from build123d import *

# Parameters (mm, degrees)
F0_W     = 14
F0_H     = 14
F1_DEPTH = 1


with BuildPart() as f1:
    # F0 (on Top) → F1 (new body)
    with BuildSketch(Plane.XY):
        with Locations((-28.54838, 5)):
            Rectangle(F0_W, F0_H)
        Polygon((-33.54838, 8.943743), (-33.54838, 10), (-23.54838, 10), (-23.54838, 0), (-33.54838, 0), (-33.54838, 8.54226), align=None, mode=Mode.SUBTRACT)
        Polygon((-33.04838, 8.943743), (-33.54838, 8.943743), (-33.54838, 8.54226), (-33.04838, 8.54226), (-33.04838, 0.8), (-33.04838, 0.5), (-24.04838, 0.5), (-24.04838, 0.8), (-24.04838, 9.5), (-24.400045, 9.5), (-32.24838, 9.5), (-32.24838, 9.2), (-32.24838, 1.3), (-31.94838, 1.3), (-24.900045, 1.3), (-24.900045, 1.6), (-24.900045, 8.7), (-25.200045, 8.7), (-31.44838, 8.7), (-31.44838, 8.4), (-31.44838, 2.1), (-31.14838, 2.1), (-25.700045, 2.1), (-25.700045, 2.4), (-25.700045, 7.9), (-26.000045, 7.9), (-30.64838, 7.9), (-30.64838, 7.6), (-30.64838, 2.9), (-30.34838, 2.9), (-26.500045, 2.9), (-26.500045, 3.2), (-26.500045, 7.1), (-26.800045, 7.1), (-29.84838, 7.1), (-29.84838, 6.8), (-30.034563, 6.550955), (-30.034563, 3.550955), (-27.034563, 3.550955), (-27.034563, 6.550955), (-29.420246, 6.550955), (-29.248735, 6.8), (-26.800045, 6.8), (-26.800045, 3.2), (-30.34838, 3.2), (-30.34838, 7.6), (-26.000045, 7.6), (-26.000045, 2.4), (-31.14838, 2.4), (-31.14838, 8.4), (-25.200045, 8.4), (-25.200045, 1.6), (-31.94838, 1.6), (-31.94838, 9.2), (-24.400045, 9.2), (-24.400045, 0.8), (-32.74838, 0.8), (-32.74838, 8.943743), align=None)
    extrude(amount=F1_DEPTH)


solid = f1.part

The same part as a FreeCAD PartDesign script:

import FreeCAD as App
import Part
import Sketcher
from FreeCAD import Vector

doc = App.newDocument("Part")
body = doc.addObject("PartDesign::Body", "Body")

# Sketch on XY plane
sketch1 = doc.addObject("Sketcher::SketchObject", "Sketch")
body.addObject(sketch1)
sketch1.AttachmentSupport = (doc.XY_Plane, [""])
sketch1.MapMode = "FlatFace"
sketch1.addGeometry(Part.LineSegment(Vector(-35.54838, 12, 0), Vector(-35.54838, -2, 0)), False)
sketch1.addGeometry(Part.LineSegment(Vector(-35.54838, -2, 0), Vector(-21.54838, -2, 0)), False)
sketch1.addGeometry(Part.LineSegment(Vector(-21.54838, -2, 0), Vector(-21.54838, 12, 0)), False)
sketch1.addGeometry(Part.LineSegment(Vector(-21.54838, 12, 0), Vector(-35.54838, 12, 0)), False)
sketch1.addGeometry(Part.LineSegment(Vector(-33.54838, 0, 0), Vector(-33.54838, 8.54226, 0)), False)
sketch1.addGeometry(Part.LineSegment(Vector(-33.54838, 8.54226, 0), Vector(-33.04838, 8.54226, 0)), False)
sketch1.addGeometry(Part.LineSegment(Vector(-33.04838, 8.54226, 0), Vector(-33.04838, 0.5, 0)), False)
sketch1.addGeometry(Part.LineSegment(Vector(-33.04838, 0.5, 0), Vector(-24.04838, 0.5, 0)), False)
sketch1.addGeometry(Part.LineSegment(Vector(-24.04838, 0.5, 0), Vector(-24.04838, 9.5, 0)), False)
sketch1.addGeometry(Part.LineSegment(Vector(-24.04838, 9.5, 0), Vector(-32.24838, 9.5, 0)), False)
sketch1.addGeometry(Part.LineSegment(Vector(-32.24838, 9.5, 0), Vector(-32.24838, 1.3, 0)), False)
sketch1.addGeometry(Part.LineSegment(Vector(-32.24838, 1.3, 0), Vector(-24.900045, 1.3, 0)), False)
sketch1.addGeometry(Part.LineSegment(Vector(-24.900045, 1.3, 0), Vector(-24.900045, 8.7, 0)), False)
sketch1.addGeometry(Part.LineSegment(Vector(-24.900045, 8.7, 0), Vector(-31.44838, 8.7, 0)), False)
sketch1.addGeometry(Part.LineSegment(Vector(-31.44838, 8.7, 0), Vector(-31.44838, 2.1, 0)), False)
sketch1.addGeometry(Part.LineSegment(Vector(-31.44838, 2.1, 0), Vector(-25.700045, 2.1, 0)), False)
sketch1.addGeometry(Part.LineSegment(Vector(-25.700045, 2.1, 0), Vector(-25.700045, 7.9, 0)), False)
sketch1.addGeometry(Part.LineSegment(Vector(-25.700045, 7.9, 0), Vector(-30.64838, 7.9, 0)), False)
sketch1.addGeometry(Part.LineSegment(Vector(-30.64838, 7.9, 0), Vector(-30.64838, 2.9, 0)), False)
sketch1.addGeometry(Part.LineSegment(Vector(-30.64838, 2.9, 0), Vector(-26.500045, 2.9, 0)), False)
sketch1.addGeometry(Part.LineSegment(Vector(-26.500045, 2.9, 0), Vector(-26.500045, 7.1, 0)), False)
sketch1.addGeometry(Part.LineSegment(Vector(-26.500045, 7.1, 0), Vector(-29.84838, 7.1, 0)), False)
sketch1.addGeometry(Part.LineSegment(Vector(-29.84838, 7.1, 0), Vector(-29.84838, 6.8, 0)), False)
sketch1.addGeometry(Part.LineSegment(Vector(-29.84838, 6.8, 0), Vector(-30.034563, 6.550955, 0)), False)
sketch1.addGeometry(Part.LineSegment(Vector(-30.034563, 6.550955, 0), Vector(-30.034563, 3.550955, 0)), False)
sketch1.addGeometry(Part.LineSegment(Vector(-30.034563, 3.550955, 0), Vector(-27.034563, 3.550955, 0)), False)
sketch1.addGeometry(Part.LineSegment(Vector(-27.034563, 3.550955, 0), Vector(-27.034563, 6.550955, 0)), False)
sketch1.addGeometry(Part.LineSegment(Vector(-27.034563, 6.550955, 0), Vector(-29.420246, 6.550955, 0)), False)
sketch1.addGeometry(Part.LineSegment(Vector(-29.420246, 6.550955, 0), Vector(-29.248735, 6.8, 0)), False)
sketch1.addGeometry(Part.LineSegment(Vector(-29.248735, 6.8, 0), Vector(-26.800045, 6.8, 0)), False)
sketch1.addGeometry(Part.LineSegment(Vector(-26.800045, 6.8, 0), Vector(-26.800045, 3.2, 0)), False)
sketch1.addGeometry(Part.LineSegment(Vector(-26.800045, 3.2, 0), Vector(-30.34838, 3.2, 0)), False)
sketch1.addGeometry(Part.LineSegment(Vector(-30.34838, 3.2, 0), Vector(-30.34838, 7.6, 0)), False)
sketch1.addGeometry(Part.LineSegment(Vector(-30.34838, 7.6, 0), Vector(-26.000045, 7.6, 0)), False)
sketch1.addGeometry(Part.LineSegment(Vector(-26.000045, 7.6, 0), Vector(-26.000045, 2.4, 0)), False)
sketch1.addGeometry(Part.LineSegment(Vector(-26.000045, 2.4, 0), Vector(-31.14838, 2.4, 0)), False)
sketch1.addGeometry(Part.LineSegment(Vector(-31.14838, 2.4, 0), Vector(-31.14838, 8.4, 0)), False)
sketch1.addGeometry(Part.LineSegment(Vector(-31.14838, 8.4, 0), Vector(-25.200045, 8.4, 0)), False)
sketch1.addGeometry(Part.LineSegment(Vector(-25.200045, 8.4, 0), Vector(-25.200045, 1.6, 0)), False)
sketch1.addGeometry(Part.LineSegment(Vector(-25.200045, 1.6, 0), Vector(-31.94838, 1.6, 0)), False)
sketch1.addGeometry(Part.LineSegment(Vector(-31.94838, 1.6, 0), Vector(-31.94838, 9.2, 0)), False)
sketch1.addGeometry(Part.LineSegment(Vector(-31.94838, 9.2, 0), Vector(-24.400045, 9.2, 0)), False)
sketch1.addGeometry(Part.LineSegment(Vector(-24.400045, 9.2, 0), Vector(-24.400045, 0.8, 0)), False)
sketch1.addGeometry(Part.LineSegment(Vector(-24.400045, 0.8, 0), Vector(-32.74838, 0.8, 0)), False)
sketch1.addGeometry(Part.LineSegment(Vector(-32.74838, 0.8, 0), Vector(-32.74838, 8.943743, 0)), False)
sketch1.addGeometry(Part.LineSegment(Vector(-32.74838, 8.943743, 0), Vector(-33.54838, 8.943743, 0)), False)
sketch1.addGeometry(Part.LineSegment(Vector(-33.54838, 8.943743, 0), Vector(-33.54838, 10, 0)), False)
sketch1.addGeometry(Part.LineSegment(Vector(-33.54838, 10, 0), Vector(-23.54838, 10, 0)), False)
sketch1.addGeometry(Part.LineSegment(Vector(-23.54838, 10, 0), Vector(-23.54838, 0, 0)), False)
sketch1.addGeometry(Part.LineSegment(Vector(-23.54838, 0, 0), Vector(-33.54838, 0, 0)), False)
sketch1.addConstraint(Sketcher.Constraint("Coincident", 0, 2, 1, 1))
sketch1.addConstraint(Sketcher.Constraint("Coincident", 1, 2, 2, 1))
sketch1.addConstraint(Sketcher.Constraint("Coincident", 2, 2, 3, 1))
sketch1.addConstraint(Sketcher.Constraint("Coincident", 3, 2, 0, 1))
sketch1.addConstraint(Sketcher.Constraint("Coincident", 4, 2, 5, 1))
sketch1.addConstraint(Sketcher.Constraint("Coincident", 5, 2, 6, 1))
sketch1.addConstraint(Sketcher.Constraint("Coincident", 6, 2, 7, 1))
sketch1.addConstraint(Sketcher.Constraint("Coincident", 7, 2, 8, 1))
sketch1.addConstraint(Sketcher.Constraint("Coincident", 8, 2, 9, 1))
sketch1.addConstraint(Sketcher.Constraint("Coincident", 9, 2, 10, 1))
sketch1.addConstraint(Sketcher.Constraint("Coincident", 10, 2, 11, 1))
sketch1.addConstraint(Sketcher.Constraint("Coincident", 11, 2, 12, 1))
sketch1.addConstraint(Sketcher.Constraint("Coincident", 12, 2, 13, 1))
sketch1.addConstraint(Sketcher.Constraint("Coincident", 13, 2, 14, 1))
sketch1.addConstraint(Sketcher.Constraint("Coincident", 14, 2, 15, 1))
sketch1.addConstraint(Sketcher.Constraint("Coincident", 15, 2, 16, 1))
sketch1.addConstraint(Sketcher.Constraint("Coincident", 16, 2, 17, 1))
sketch1.addConstraint(Sketcher.Constraint("Coincident", 17, 2, 18, 1))
sketch1.addConstraint(Sketcher.Constraint("Coincident", 18, 2, 19, 1))
sketch1.addConstraint(Sketcher.Constraint("Coincident", 19, 2, 20, 1))
sketch1.addConstraint(Sketcher.Constraint("Coincident", 20, 2, 21, 1))
sketch1.addConstraint(Sketcher.Constraint("Coincident", 21, 2, 22, 1))
sketch1.addConstraint(Sketcher.Constraint("Coincident", 22, 2, 23, 1))
sketch1.addConstraint(Sketcher.Constraint("Coincident", 23, 2, 24, 1))
sketch1.addConstraint(Sketcher.Constraint("Coincident", 24, 2, 25, 1))
sketch1.addConstraint(Sketcher.Constraint("Coincident", 25, 2, 26, 1))
sketch1.addConstraint(Sketcher.Constraint("Coincident", 26, 2, 27, 1))
sketch1.addConstraint(Sketcher.Constraint("Coincident", 27, 2, 28, 1))
sketch1.addConstraint(Sketcher.Constraint("Coincident", 28, 2, 29, 1))
sketch1.addConstraint(Sketcher.Constraint("Coincident", 29, 2, 30, 1))
sketch1.addConstraint(Sketcher.Constraint("Coincident", 30, 2, 31, 1))
sketch1.addConstraint(Sketcher.Constraint("Coincident", 31, 2, 32, 1))
sketch1.addConstraint(Sketcher.Constraint("Coincident", 32, 2, 33, 1))
sketch1.addConstraint(Sketcher.Constraint("Coincident", 33, 2, 34, 1))
sketch1.addConstraint(Sketcher.Constraint("Coincident", 34, 2, 35, 1))
sketch1.addConstraint(Sketcher.Constraint("Coincident", 35, 2, 36, 1))
sketch1.addConstraint(Sketcher.Constraint("Coincident", 36, 2, 37, 1))
sketch1.addConstraint(Sketcher.Constraint("Coincident", 37, 2, 38, 1))
sketch1.addConstraint(Sketcher.Constraint("Coincident", 38, 2, 39, 1))
sketch1.addConstraint(Sketcher.Constraint("Coincident", 39, 2, 40, 1))
sketch1.addConstraint(Sketcher.Constraint("Coincident", 40, 2, 41, 1))
sketch1.addConstraint(Sketcher.Constraint("Coincident", 41, 2, 42, 1))
sketch1.addConstraint(Sketcher.Constraint("Coincident", 42, 2, 43, 1))
sketch1.addConstraint(Sketcher.Constraint("Coincident", 43, 2, 44, 1))
sketch1.addConstraint(Sketcher.Constraint("Coincident", 44, 2, 45, 1))
sketch1.addConstraint(Sketcher.Constraint("Coincident", 45, 2, 46, 1))
sketch1.addConstraint(Sketcher.Constraint("Coincident", 46, 2, 47, 1))
sketch1.addConstraint(Sketcher.Constraint("Coincident", 47, 2, 48, 1))
sketch1.addConstraint(Sketcher.Constraint("Coincident", 48, 2, 49, 1))
sketch1.addConstraint(Sketcher.Constraint("Coincident", 49, 2, 4, 1))
sketch1.addConstraint(Sketcher.Constraint("Vertical", 0))
sketch1.addConstraint(Sketcher.Constraint("Horizontal", 1))
sketch1.addConstraint(Sketcher.Constraint("Vertical", 2))
sketch1.addConstraint(Sketcher.Constraint("Horizontal", 3))
sketch1.addConstraint(Sketcher.Constraint("Vertical", 4))
sketch1.addConstraint(Sketcher.Constraint("Horizontal", 5))
sketch1.addConstraint(Sketcher.Constraint("Vertical", 6))
sketch1.addConstraint(Sketcher.Constraint("Horizontal", 7))
sketch1.addConstraint(Sketcher.Constraint("Vertical", 8))
sketch1.addConstraint(Sketcher.Constraint("Horizontal", 9))
sketch1.addConstraint(Sketcher.Constraint("Vertical", 10))
sketch1.addConstraint(Sketcher.Constraint("Horizontal", 11))
sketch1.addConstraint(Sketcher.Constraint("Vertical", 12))
sketch1.addConstraint(Sketcher.Constraint("Horizontal", 13))
sketch1.addConstraint(Sketcher.Constraint("Vertical", 14))
sketch1.addConstraint(Sketcher.Constraint("Horizontal", 15))
sketch1.addConstraint(Sketcher.Constraint("Vertical", 16))
sketch1.addConstraint(Sketcher.Constraint("Horizontal", 17))
sketch1.addConstraint(Sketcher.Constraint("Vertical", 18))
sketch1.addConstraint(Sketcher.Constraint("Horizontal", 19))
sketch1.addConstraint(Sketcher.Constraint("Vertical", 20))
sketch1.addConstraint(Sketcher.Constraint("Horizontal", 21))
sketch1.addConstraint(Sketcher.Constraint("Vertical", 22))
sketch1.addConstraint(Sketcher.Constraint("Vertical", 24))
sketch1.addConstraint(Sketcher.Constraint("Horizontal", 25))
sketch1.addConstraint(Sketcher.Constraint("Vertical", 26))
sketch1.addConstraint(Sketcher.Constraint("Horizontal", 27))
sketch1.addConstraint(Sketcher.Constraint("Horizontal", 29))
sketch1.addConstraint(Sketcher.Constraint("Vertical", 30))
sketch1.addConstraint(Sketcher.Constraint("Horizontal", 31))
sketch1.addConstraint(Sketcher.Constraint("Vertical", 32))
sketch1.addConstraint(Sketcher.Constraint("Horizontal", 33))
sketch1.addConstraint(Sketcher.Constraint("Vertical", 34))
sketch1.addConstraint(Sketcher.Constraint("Horizontal", 35))
sketch1.addConstraint(Sketcher.Constraint("Vertical", 36))
sketch1.addConstraint(Sketcher.Constraint("Horizontal", 37))
sketch1.addConstraint(Sketcher.Constraint("Vertical", 38))
sketch1.addConstraint(Sketcher.Constraint("Horizontal", 39))
sketch1.addConstraint(Sketcher.Constraint("Vertical", 40))
sketch1.addConstraint(Sketcher.Constraint("Horizontal", 41))
sketch1.addConstraint(Sketcher.Constraint("Vertical", 42))
sketch1.addConstraint(Sketcher.Constraint("Horizontal", 43))
sketch1.addConstraint(Sketcher.Constraint("Vertical", 44))
sketch1.addConstraint(Sketcher.Constraint("Horizontal", 45))
sketch1.addConstraint(Sketcher.Constraint("Vertical", 46))
sketch1.addConstraint(Sketcher.Constraint("Horizontal", 47))
sketch1.addConstraint(Sketcher.Constraint("Vertical", 48))
sketch1.addConstraint(Sketcher.Constraint("Horizontal", 49))
sketch1.addConstraint(Sketcher.Constraint("PointOnObject", 48, 2, -1))
sketch1.addConstraint(Sketcher.Constraint("Horizontal", 23, 2, 26, 2))
sketch1.addConstraint(Sketcher.Constraint("Horizontal", 22, 2, 28, 2))
sketch1.addConstraint(Sketcher.Constraint("Vertical", 4, 2, 45, 2))
sketch1.addConstraint(Sketcher.Constraint("Equal", 3, 0))
sketch1.addConstraint(Sketcher.Constraint("Equal", 7, 8))
sketch1.addConstraint(Sketcher.Constraint("Equal", 9, 10))
sketch1.addConstraint(Sketcher.Constraint("Equal", 25, 24))
sketch1.addConstraint(Sketcher.Constraint("Equal", 49, 48))
sketch1.addConstraint(Sketcher.Constraint("DistanceX", 1, 1, 1, 2, 14.0))
sketch1.addConstraint(Sketcher.Constraint("DistanceX", 7, 1, 7, 2, 9.0))
sketch1.addConstraint(Sketcher.Constraint("DistanceX", 25, 1, 25, 2, 3.0))
sketch1.addConstraint(Sketcher.Constraint("DistanceX", 47, 1, 47, 2, 10.0))
sketch1.addConstraint(Sketcher.Constraint("DistanceY", 18, 2, 18, 1, 5.0))
sketch1.addConstraint(Sketcher.Constraint("DistanceY", 36, 1, 36, 2, 6.0))
sketch1.addConstraint(Sketcher.Constraint("DistanceX", 5, 1, 5, 2, 0.5))
sketch1.addConstraint(Sketcher.Constraint("DistanceX", 9, 2, 9, 1, 8.2))
sketch1.addConstraint(Sketcher.Constraint("DistanceX", 45, 2, 45, 1, 0.8))
sketch1.addConstraint(Sketcher.Constraint("DistanceY", 12, 1, 12, 2, 7.4))
sketch1.addConstraint(Sketcher.Constraint("DistanceY", 14, 2, 14, 1, 6.6))
sketch1.addConstraint(Sketcher.Constraint("DistanceY", 16, 1, 16, 2, 5.8))
sketch1.addConstraint(Sketcher.Constraint("DistanceY", 20, 1, 20, 2, 4.2))
sketch1.addConstraint(Sketcher.Constraint("DistanceY", 22, 2, 22, 1, 0.3))
sketch1.addConstraint(Sketcher.Constraint("DistanceY", 30, 2, 30, 1, 3.6))
sketch1.addConstraint(Sketcher.Constraint("DistanceY", 32, 1, 32, 2, 4.4))
sketch1.addConstraint(Sketcher.Constraint("DistanceY", 34, 2, 34, 1, 5.2))
sketch1.addConstraint(Sketcher.Constraint("DistanceY", 38, 2, 38, 1, 6.8))
sketch1.addConstraint(Sketcher.Constraint("DistanceY", 40, 1, 40, 2, 7.6))
sketch1.addConstraint(Sketcher.Constraint("DistanceY", 42, 2, 42, 1, 8.4))
sketch1.addConstraint(Sketcher.Constraint("DistanceY", 0, 2, -1, 1, 2.0))
sketch1.addConstraint(Sketcher.Constraint("DistanceX", 3, 2, 4, 2, 2.0))
sketch1.addConstraint(Sketcher.Constraint("DistanceY", -1, 1, 6, 2, 0.5))
sketch1.addConstraint(Sketcher.Constraint("DistanceX", 9, 2, 13, 2, 0.8))
sketch1.addConstraint(Sketcher.Constraint("DistanceX", 15, 2, 11, 2, 0.8))
sketch1.addConstraint(Sketcher.Constraint("DistanceX", 13, 2, 17, 2, 0.8))
sketch1.addConstraint(Sketcher.Constraint("DistanceX", 19, 2, 15, 2, 0.8))
sketch1.addConstraint(Sketcher.Constraint("DistanceX", 17, 2, 21, 2, 0.8))
sketch1.addConstraint(Sketcher.Constraint("DistanceX", 29, 2, 20, 2, 0.3))
sketch1.addConstraint(Sketcher.Constraint("DistanceX", 18, 2, 31, 2, 0.3))
sketch1.addConstraint(Sketcher.Constraint("DistanceX", 33, 2, 16, 2, 0.3))
sketch1.addConstraint(Sketcher.Constraint("DistanceX", 14, 2, 35, 2, 0.3))
sketch1.addConstraint(Sketcher.Constraint("DistanceX", 37, 2, 12, 2, 0.3))
sketch1.addConstraint(Sketcher.Constraint("DistanceX", 10, 2, 39, 2, 0.3))
sketch1.addConstraint(Sketcher.Constraint("DistanceX", 12, 2, 41, 2, 0.5))
sketch1.addConstraint(Sketcher.Constraint("DistanceX", 29, 1, 29, 2, 2.44869))
sketch1.addConstraint(Sketcher.Constraint("DistanceY", 4, 1, 4, 2, 8.54226))
sketch1.addConstraint(Sketcher.Constraint("DistanceX", 27, 2, 29, 2, 2.620201))
sketch1.addConstraint(Sketcher.Constraint("Distance", 28, 0.30239))
sketch1.addConstraint(Sketcher.Constraint("DistanceX", 11, 1, 11, 2, 7.348335))
sketch1.addConstraint(Sketcher.Constraint("DistanceX", 27, 2, 27, 1, 2.385683))
sketch1.addConstraint(Sketcher.Constraint("DistanceY", 44, 1, 44, 2, 8.143743))
sketch1.addConstraint(Sketcher.Constraint("DistanceX", 0, 2, -1, 1, 35.54838))
pad1 = doc.addObject("PartDesign::Pad", "Pad")
body.addObject(pad1)
pad1.Profile = sketch1
pad1.Length = 1

doc.recompute()
